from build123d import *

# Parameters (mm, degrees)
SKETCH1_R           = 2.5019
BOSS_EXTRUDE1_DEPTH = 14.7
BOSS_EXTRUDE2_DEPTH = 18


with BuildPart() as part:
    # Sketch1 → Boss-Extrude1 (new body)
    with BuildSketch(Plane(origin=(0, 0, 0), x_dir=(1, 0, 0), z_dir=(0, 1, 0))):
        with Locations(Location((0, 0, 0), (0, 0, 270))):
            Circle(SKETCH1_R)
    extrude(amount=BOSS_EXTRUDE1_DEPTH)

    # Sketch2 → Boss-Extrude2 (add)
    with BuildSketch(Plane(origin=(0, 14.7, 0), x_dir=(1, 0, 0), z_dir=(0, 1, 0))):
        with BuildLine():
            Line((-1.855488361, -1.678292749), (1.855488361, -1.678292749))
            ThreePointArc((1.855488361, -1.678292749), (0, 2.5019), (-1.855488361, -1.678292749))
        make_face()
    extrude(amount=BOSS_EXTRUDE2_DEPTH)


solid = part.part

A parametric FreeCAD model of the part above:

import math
import FreeCAD as App
import Part
import Sketcher
Q = App.Units.Quantity

doc = App.newDocument("Part")
body = doc.addObject("PartDesign::Body", "Body")

sketch1 = body.newObject("Sketcher::SketchObject", "Sketch")
sketch1.AttachmentSupport = (doc.getObject("XZ_Plane"), [""])
sketch1.MapMode = "FlatFace"
sketch1.addGeometry(Part.Circle(App.Vector(0, 0, 0), App.Vector(0, 0, 1), 2.5019), False)
sketch1.addConstraint([
    Sketcher.Constraint("Coincident", 0, 3, -1, 1),
    Sketcher.Constraint("Diameter", 0, Q("5.0038 mm")),
])
pad1 = body.newObject("PartDesign::Pad", "Pad")
pad1.Profile = sketch1
pad1.Length = 14.7
pad1.Reversed = True

sketch2 = body.newObject("Sketcher::SketchObject", "Sketch001")
sketch2.AttachmentSupport = (doc.getObject("XZ_Plane"), [""])
sketch2.MapMode = "FlatFace"
sketch2.AttachmentOffset = App.Placement(App.Vector(0, 0, -14.7), App.Rotation())
sketch2.addGeometry([
    Part.LineSegment(App.Vector(-1.855488, 1.678293, 0), App.Vector(1.855488, 1.678293, 0)),
    Part.ArcOfCircle(Part.Circle(App.Vector(0, 0, 0), App.Vector(0, 0, 1), 2.5019), math.radians(137.870598), math.radians(402.129402)),
], False)
sketch2.addConstraint([
    Sketcher.Constraint("Coincident", 0, 1, 1, 1),
    Sketcher.Constraint("Coincident", 1, 2, 0, 2),
    Sketcher.Constraint("Horizontal", 0),
    Sketcher.Constraint("Coincident", 1, 3, -1, 1),
    Sketcher.Constraint("Radius", 1, Q("2.5019 mm")),
    Sketcher.Constraint("DistanceX", 0, 1, 0, 2, Q("3.710977 mm")),
])
pad2 = body.newObject("PartDesign::Pad", "Pad001")
pad2.Profile = sketch2
pad2.Length = 18
pad2.Reversed = True

doc.recompute()
